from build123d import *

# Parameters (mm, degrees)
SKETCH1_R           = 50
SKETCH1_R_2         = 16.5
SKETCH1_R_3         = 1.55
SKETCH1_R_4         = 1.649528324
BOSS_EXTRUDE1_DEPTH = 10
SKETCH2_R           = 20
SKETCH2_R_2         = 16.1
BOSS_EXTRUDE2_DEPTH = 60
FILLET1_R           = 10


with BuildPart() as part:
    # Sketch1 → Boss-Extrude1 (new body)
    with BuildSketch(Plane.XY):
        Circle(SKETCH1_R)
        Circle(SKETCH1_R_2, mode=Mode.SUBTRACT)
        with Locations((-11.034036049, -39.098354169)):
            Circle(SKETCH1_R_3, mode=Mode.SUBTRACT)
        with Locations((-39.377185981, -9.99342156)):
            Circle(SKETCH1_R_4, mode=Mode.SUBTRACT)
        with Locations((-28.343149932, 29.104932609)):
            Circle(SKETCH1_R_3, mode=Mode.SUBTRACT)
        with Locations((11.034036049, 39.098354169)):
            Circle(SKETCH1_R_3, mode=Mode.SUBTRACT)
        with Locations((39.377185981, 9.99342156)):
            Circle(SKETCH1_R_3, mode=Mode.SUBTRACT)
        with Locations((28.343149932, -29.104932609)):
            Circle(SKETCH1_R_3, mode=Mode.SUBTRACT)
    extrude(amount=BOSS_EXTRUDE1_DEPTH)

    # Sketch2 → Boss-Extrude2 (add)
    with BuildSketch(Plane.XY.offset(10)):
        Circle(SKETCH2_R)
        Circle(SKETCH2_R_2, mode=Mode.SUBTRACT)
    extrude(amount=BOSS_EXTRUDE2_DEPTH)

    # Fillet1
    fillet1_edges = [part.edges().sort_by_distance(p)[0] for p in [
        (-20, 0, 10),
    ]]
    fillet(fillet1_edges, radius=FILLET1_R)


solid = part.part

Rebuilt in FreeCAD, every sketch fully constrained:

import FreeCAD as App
import Part
import Sketcher

V = App.Vector
Q = App.Units.Quantity


def edges_at(feature, points):
    """Names of the edges that pass closest to the given points."""
    edges = feature.Shape.Edges
    near = lambda p: min(range(len(edges)), key=lambda i: edges[i].distToShape(Part.Vertex(*p))[0])
    return sorted({f"Edge{near(p) + 1}" for p in points})

doc = App.newDocument("Part")
params = doc.addObject("Spreadsheet::Sheet", "Params")
for row, (alias, value) in enumerate([
    ("sketch1_diameter", "100 mm"),
    ("sketch1_diameter2", "33 mm"),
    ("sketch1_diameter3", "3.1 mm"),
    ("pad1_length", "10 mm"),
    ("sketch2_diameter", "40 mm"),
    ("sketch2_diameter2", "32.2 mm"),
    ("pad2_length", "60 mm"),
    ("fillet_radius", "10 mm"),
], start=1):
    params.set(f"A{row}", alias)
    params.set(f"B{row}", "=" + value)
    params.setAlias(f"B{row}", alias)

body = doc.addObject("PartDesign::Body", "Body")

# Sketch on XY plane
sketch1 = doc.addObject("Sketcher::SketchObject", "Sketch")
body.addObject(sketch1)
sketch1.AttachmentSupport = (doc.XY_Plane, [""])
sketch1.MapMode = "FlatFace"
sketch1.addGeometry(Part.Circle(V(0, 0, 0), V(0, 0, 1), 50), False)
sketch1.addGeometry(Part.Circle(V(-11.034036, -39.098354, 0), V(0, 0, 1), 1.55), False)
sketch1.addGeometry(Part.Circle(V(-39.377186, -9.993422, 0), V(0, 0, 1), 1.649528), False)
sketch1.addGeometry(Part.Circle(V(28.34315, -29.104933, 0), V(0, 0, 1), 1.55), False)
sketch1.addGeometry(Part.Circle(V(0, 0, 0), V(0, 0, 1), 16.5), False)
sketch1.addGeometry(Part.Circle(V(-28.34315, 29.104933, 0), V(0, 0, 1), 1.55), False)
sketch1.addGeometry(Part.Circle(V(39.377186, 9.993422, 0), V(0, 0, 1), 1.55), False)
sketch1.addGeometry(Part.Circle(V(11.034036, 39.098354, 0), V(0, 0, 1), 1.55), False)
sketch1.addConstraint(Sketcher.Constraint("Coincident", 0, 3, -1, 1))
sketch1.addConstraint(Sketcher.Constraint("Coincident", 4, 3, -1, 1))
sketch1.addConstraint(Sketcher.Constraint("Equal", 1, 3))
sketch1.addConstraint(Sketcher.Constraint("Equal", 3, 5))
sketch1.addConstraint(Sketcher.Constraint("Equal", 5, 6))
sketch1.addConstraint(Sketcher.Constraint("Equal", 6, 7))
sketch1.addConstraint(Sketcher.Constraint("Symmetric", 3, 3, 5, 3, -1, 1))
sketch1.addConstraint(Sketcher.Constraint("Symmetric", 2, 3, 6, 3, -1, 1))
sketch1.addConstraint(Sketcher.Constraint("Symmetric", 1, 3, 7, 3, -1, 1))
sketch1.addConstraint(Sketcher.Constraint("Diameter", 0, Q("100 mm")))
sketch1.addConstraint(Sketcher.Constraint("Diameter", 4, Q("33 mm")))
sketch1.addConstraint(Sketcher.Constraint("Diameter", 1, Q("3.1 mm")))
sketch1.addConstraint(Sketcher.Constraint("Diameter", 2, Q("3.299057 mm")))
sketch1.addConstraint(Sketcher.Constraint("DistanceX", 5, 3, 3, 3, Q("56.6863 mm")))
sketch1.addConstraint(Sketcher.Constraint("DistanceY", 2, 3, -1, 1, Q("9.993422 mm")))
sketch1.addConstraint(Sketcher.Constraint("DistanceX", 2, 3, 1, 3, Q("28.34315 mm")))
sketch1.addConstraint(Sketcher.Constraint("DistanceY", 1, 3, 3, 3, Q("9.993422 mm")))
sketch1.addConstraint(Sketcher.Constraint("DistanceY", 3, 3, 2, 3, Q("19.111511 mm")))
sketch1.addConstraint(Sketcher.Constraint("DistanceX", 1, 3, -1, 1, Q("11.034036 mm")))
sketch1.setExpression("Constraints[9]", "Params.sketch1_diameter")
sketch1.setExpression("Constraints[10]", "Params.sketch1_diameter2")
sketch1.setExpression("Constraints[11]", "Params.sketch1_diameter3")
pad1 = doc.addObject("PartDesign::Pad", "Pad")
body.addObject(pad1)
pad1.Profile = sketch1
pad1.setExpression("Length", "Params.pad1_length")

# Sketch on XY plane
sketch2 = doc.addObject("Sketcher::SketchObject", "Sketch001")
body.addObject(sketch2)
sketch2.AttachmentSupport = (doc.XY_Plane, [""])
sketch2.MapMode = "FlatFace"
sketch2.AttachmentOffset = App.Placement(V(0, 0, 10), App.Rotation())
sketch2.addGeometry(Part.Circle(V(0, 0, 0), V(0, 0, 1), 20), False)
sketch2.addGeometry(Part.Circle(V(0, 0, 0), V(0, 0, 1), 16.1), False)
sketch2.addConstraint(Sketcher.Constraint("Coincident", 0, 3, -1, 1))
sketch2.addConstraint(Sketcher.Constraint("Coincident", 1, 3, -1, 1))
sketch2.addConstraint(Sketcher.Constraint("Diameter", 0, Q("40 mm")))
sketch2.addConstraint(Sketcher.Constraint("Diameter", 1, Q("32.2 mm")))
sketch2.setExpression("Constraints[2]", "Params.sketch2_diameter")
sketch2.setExpression("Constraints[3]", "Params.sketch2_diameter2")
pad2 = doc.addObject("PartDesign::Pad", "Pad001")
body.addObject(pad2)
pad2.Profile = sketch2
pad2.setExpression("Length", "Params.pad2_length")
doc.recompute()

fillet = doc.addObject("PartDesign::Fillet", "Fillet")
body.addObject(fillet)
fillet.Base = (pad2, edges_at(pad2, [(-20, 0, 10)]))
fillet.setExpression("Radius", "Params.fillet_radius")

doc.recompute()
